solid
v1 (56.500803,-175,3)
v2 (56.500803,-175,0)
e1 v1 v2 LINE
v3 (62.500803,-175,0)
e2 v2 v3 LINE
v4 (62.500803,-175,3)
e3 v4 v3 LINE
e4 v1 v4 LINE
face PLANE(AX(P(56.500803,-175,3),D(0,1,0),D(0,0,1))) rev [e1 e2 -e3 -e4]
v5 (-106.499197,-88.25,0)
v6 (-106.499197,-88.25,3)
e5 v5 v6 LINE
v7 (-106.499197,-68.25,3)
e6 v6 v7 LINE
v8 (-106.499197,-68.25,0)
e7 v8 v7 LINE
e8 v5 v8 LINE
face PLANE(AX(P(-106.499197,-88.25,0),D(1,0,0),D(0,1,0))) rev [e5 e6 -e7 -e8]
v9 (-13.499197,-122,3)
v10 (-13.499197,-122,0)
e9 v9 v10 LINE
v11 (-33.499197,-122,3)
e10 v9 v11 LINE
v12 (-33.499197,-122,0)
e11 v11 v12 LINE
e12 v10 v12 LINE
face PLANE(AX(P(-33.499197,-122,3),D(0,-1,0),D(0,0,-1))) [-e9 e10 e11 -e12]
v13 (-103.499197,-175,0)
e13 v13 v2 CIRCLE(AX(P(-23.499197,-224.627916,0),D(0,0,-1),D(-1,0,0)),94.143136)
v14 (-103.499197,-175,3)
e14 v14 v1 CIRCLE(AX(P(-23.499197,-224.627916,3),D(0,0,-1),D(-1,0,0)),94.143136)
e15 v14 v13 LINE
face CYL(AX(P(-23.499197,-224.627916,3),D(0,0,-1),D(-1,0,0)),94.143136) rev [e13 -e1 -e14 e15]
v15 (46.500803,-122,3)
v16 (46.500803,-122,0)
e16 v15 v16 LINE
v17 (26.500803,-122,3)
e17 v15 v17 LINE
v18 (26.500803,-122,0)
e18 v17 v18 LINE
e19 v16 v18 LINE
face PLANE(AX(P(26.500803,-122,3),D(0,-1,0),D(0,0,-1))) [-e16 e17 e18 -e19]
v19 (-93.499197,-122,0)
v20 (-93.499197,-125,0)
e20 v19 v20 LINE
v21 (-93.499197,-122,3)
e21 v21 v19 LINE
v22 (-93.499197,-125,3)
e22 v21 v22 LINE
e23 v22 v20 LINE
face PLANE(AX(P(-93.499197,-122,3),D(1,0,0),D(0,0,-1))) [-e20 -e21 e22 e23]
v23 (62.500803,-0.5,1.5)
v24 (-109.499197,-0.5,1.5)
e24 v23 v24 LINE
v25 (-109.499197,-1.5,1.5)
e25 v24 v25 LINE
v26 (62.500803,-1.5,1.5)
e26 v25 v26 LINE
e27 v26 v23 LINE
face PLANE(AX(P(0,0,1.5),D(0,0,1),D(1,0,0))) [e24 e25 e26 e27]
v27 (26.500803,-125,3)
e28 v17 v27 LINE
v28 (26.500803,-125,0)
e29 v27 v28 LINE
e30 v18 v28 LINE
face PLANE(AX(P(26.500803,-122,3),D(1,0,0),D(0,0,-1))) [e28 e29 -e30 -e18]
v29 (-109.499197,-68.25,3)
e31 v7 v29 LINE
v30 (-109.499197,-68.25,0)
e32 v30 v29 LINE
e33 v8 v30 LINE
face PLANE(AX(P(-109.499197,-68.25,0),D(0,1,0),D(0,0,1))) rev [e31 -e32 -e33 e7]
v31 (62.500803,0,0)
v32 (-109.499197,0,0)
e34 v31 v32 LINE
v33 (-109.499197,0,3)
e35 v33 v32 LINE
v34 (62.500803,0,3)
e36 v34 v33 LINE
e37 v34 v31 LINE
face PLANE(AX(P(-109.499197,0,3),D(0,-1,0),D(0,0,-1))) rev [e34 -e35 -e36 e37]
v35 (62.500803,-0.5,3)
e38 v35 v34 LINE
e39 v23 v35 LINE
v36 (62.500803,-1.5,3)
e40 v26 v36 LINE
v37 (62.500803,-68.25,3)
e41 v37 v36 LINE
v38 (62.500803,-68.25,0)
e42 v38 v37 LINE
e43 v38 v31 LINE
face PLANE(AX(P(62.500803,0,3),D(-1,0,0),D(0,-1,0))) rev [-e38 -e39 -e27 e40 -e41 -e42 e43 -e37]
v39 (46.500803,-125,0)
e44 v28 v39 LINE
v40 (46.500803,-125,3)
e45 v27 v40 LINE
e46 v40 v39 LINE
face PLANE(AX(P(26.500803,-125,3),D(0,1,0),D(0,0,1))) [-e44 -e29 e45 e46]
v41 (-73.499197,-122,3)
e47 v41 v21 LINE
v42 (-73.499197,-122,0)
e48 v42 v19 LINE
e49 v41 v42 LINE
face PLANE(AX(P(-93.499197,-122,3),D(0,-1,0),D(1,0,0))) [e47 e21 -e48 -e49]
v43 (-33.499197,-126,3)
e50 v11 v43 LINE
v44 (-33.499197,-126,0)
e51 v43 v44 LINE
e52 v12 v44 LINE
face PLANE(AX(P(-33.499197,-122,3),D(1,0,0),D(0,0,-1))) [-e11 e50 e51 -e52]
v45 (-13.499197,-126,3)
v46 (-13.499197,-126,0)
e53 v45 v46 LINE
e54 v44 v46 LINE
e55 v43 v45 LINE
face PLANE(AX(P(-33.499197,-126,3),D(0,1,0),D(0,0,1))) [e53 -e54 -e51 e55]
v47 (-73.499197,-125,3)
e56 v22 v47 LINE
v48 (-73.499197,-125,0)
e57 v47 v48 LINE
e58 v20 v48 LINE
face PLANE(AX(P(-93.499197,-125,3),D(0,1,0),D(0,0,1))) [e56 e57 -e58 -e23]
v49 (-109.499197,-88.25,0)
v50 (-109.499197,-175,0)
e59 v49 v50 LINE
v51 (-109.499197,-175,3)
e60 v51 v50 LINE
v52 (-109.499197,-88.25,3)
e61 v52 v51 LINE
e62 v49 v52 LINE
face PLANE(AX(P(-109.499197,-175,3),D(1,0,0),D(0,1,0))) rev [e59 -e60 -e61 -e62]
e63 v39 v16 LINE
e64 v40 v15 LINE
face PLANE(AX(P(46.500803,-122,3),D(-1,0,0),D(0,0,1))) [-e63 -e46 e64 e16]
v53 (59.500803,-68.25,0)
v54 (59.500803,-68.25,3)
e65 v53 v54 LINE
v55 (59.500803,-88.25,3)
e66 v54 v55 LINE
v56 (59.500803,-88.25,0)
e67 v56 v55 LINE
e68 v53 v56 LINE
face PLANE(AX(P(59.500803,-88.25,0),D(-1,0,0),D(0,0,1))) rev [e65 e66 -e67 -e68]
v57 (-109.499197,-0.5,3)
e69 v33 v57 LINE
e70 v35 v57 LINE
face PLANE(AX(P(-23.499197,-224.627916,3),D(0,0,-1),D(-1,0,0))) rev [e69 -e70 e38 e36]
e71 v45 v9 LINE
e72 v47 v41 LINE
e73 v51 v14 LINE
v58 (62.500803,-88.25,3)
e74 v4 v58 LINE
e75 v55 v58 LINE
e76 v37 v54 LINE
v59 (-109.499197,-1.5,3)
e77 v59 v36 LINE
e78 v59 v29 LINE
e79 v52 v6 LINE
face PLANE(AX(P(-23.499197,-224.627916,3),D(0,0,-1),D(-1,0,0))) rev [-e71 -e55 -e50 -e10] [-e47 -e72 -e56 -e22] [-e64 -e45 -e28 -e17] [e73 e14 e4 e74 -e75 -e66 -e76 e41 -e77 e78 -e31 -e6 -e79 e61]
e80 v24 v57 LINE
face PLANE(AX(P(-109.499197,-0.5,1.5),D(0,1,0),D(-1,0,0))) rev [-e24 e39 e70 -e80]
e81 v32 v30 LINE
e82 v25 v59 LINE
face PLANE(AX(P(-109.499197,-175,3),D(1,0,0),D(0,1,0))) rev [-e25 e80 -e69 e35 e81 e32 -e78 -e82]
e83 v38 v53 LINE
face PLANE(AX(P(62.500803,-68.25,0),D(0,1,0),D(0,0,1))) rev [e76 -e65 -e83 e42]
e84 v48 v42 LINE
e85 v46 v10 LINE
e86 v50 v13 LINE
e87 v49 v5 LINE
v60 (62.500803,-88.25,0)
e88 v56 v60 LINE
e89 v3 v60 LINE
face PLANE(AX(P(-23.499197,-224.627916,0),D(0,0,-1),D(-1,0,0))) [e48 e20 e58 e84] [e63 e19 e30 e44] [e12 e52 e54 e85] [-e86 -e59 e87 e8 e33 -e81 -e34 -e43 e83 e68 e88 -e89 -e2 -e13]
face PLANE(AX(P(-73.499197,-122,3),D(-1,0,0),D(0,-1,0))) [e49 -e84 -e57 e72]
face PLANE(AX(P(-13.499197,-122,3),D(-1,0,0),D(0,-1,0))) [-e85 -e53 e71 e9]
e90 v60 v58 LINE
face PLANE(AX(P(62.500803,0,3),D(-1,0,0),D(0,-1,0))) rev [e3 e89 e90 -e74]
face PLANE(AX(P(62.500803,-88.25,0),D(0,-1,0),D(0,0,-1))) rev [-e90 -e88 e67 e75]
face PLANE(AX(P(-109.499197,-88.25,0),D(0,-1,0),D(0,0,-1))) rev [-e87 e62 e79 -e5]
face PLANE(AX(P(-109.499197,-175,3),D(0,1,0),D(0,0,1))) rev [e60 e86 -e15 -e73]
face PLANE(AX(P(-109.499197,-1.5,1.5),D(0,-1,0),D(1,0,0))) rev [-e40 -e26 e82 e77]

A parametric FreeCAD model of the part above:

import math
import FreeCAD as App
import Part
import Sketcher
Q = App.Units.Quantity


def add_polygon(sketch, points):
    """Adds a closed chain of lines whose ends are joined by coincident constraints."""
    first, n = sketch.GeometryCount, len(points)
    for a, b in zip(points, points[1:] + points[:1]):
        sketch.addGeometry(Part.LineSegment(App.Vector(*a, 0), App.Vector(*b, 0)), False)
    for i in range(n):
        sketch.addConstraint(Sketcher.Constraint("Coincident", first + i, 2, first + (i + 1) % n, 1))

doc = App.newDocument("Part")
body = doc.addObject("PartDesign::Body", "Body")

# Sketch on XY plane
sketch1 = body.newObject("Sketcher::SketchObject", "Sketch")
sketch1.AttachmentSupport = (doc.getObject("XY_Plane"), [""])
sketch1.MapMode = "FlatFace"
sketch1.addGeometry(Part.LineSegment(App.Vector(62.500803, 0, 0), App.Vector(-109.499197, 0, 0)), False)  # 0
sketch1.addGeometry(Part.LineSegment(App.Vector(-109.499197, 0, 0), App.Vector(-109.499197, -175, 0)), False)  # 1
sketch1.addGeometry(Part.LineSegment(App.Vector(-109.499197, -175, 0), App.Vector(-103.499197, -175, 0)), False)  # 2
sketch1.addGeometry(Part.ArcOfCircle(Part.Circle(App.Vector(-23.499197, -224.627916, 0), App.Vector(0, 0, 1), 94.143136), math.radians(31.813353), math.radians(148.186647)), False)  # 3
sketch1.addGeometry(Part.LineSegment(App.Vector(56.500803, -175, 0), App.Vector(62.500803, -175, 0)), False)  # 4
sketch1.addGeometry(Part.LineSegment(App.Vector(62.500803, -175, 0), App.Vector(62.500803, 0, 0)), False)  # 5
add_polygon(sketch1, [(26.500803, -125), (26.500803, -122), (46.500803, -122), (46.500803, -125)])  # lines 6-9
add_polygon(sketch1, [(-33.499197, -126), (-33.499197, -122), (-13.499197, -122), (-13.499197, -126)])  # lines 10-13
add_polygon(sketch1, [(-93.499197, -125), (-93.499197, -122), (-73.499197, -122), (-73.499197, -125)])  # lines 14-17
sketch1.addConstraint(Sketcher.Constraint("Coincident", 0, 2, 1, 1))
sketch1.addConstraint(Sketcher.Constraint("Coincident", 1, 2, 2, 1))
sketch1.addConstraint(Sketcher.Constraint("Coincident", 2, 2, 3, 2))
sketch1.addConstraint(Sketcher.Constraint("Coincident", 3, 1, 4, 1))
sketch1.addConstraint(Sketcher.Constraint("Coincident", 4, 2, 5, 1))
sketch1.addConstraint(Sketcher.Constraint("Coincident", 5, 2, 0, 1))
sketch1.addConstraint(Sketcher.Constraint("Horizontal", 0))
sketch1.addConstraint(Sketcher.Constraint("Vertical", 1))
sketch1.addConstraint(Sketcher.Constraint("Horizontal", 2))
sketch1.addConstraint(Sketcher.Constraint("Horizontal", 4))
sketch1.addConstraint(Sketcher.Constraint("Vertical", 5))
sketch1.addConstraint(Sketcher.Constraint("Vertical", 6))
sketch1.addConstraint(Sketcher.Constraint("Horizontal", 7))
sketch1.addConstraint(Sketcher.Constraint("Vertical", 8))
sketch1.addConstraint(Sketcher.Constraint("Horizontal", 9))
sketch1.addConstraint(Sketcher.Constraint("Vertical", 10))
sketch1.addConstraint(Sketcher.Constraint("Horizontal", 11))
sketch1.addConstraint(Sketcher.Constraint("Vertical", 12))
sketch1.addConstraint(Sketcher.Constraint("Horizontal", 13))
sketch1.addConstraint(Sketcher.Constraint("Vertical", 14))
sketch1.addConstraint(Sketcher.Constraint("Horizontal", 15))
sketch1.addConstraint(Sketcher.Constraint("Vertical", 16))
sketch1.addConstraint(Sketcher.Constraint("Horizontal", 17))
sketch1.addConstraint(Sketcher.Constraint("PointOnObject", 0, 2, -1))
sketch1.addConstraint(Sketcher.Constraint("Horizontal", 2, 2, 3, 1))
sketch1.addConstraint(Sketcher.Constraint("Horizontal", 7, 2, 10, 2))
sketch1.addConstraint(Sketcher.Constraint("Horizontal", 11, 2, 14, 2))
sketch1.addConstraint(Sketcher.Constraint("Horizontal", 9, 2, 16, 2))
sketch1.addConstraint(Sketcher.Constraint("Equal", 2, 4))
sketch1.addConstraint(Sketcher.Constraint("Equal", 9, 11))
sketch1.addConstraint(Sketcher.Constraint("Equal", 13, 15))
sketch1.addConstraint(Sketcher.Constraint("DistanceX", 0, 2, 0, 1, Q("172 mm")))
sketch1.addConstraint(Sketcher.Constraint("DistanceX", 2, 1, 2, 2, Q("6 mm")))
sketch1.addConstraint(Sketcher.Constraint("DistanceX", 7, 1, 7, 2, Q("20 mm")))
sketch1.addConstraint(Sketcher.Constraint("DistanceY", 1, 2, 1, 1, Q("175 mm")))
sketch1.addConstraint(Sketcher.Constraint("DistanceY", 6, 1, 6, 2, Q("3 mm")))
sketch1.addConstraint(Sketcher.Constraint("DistanceY", 10, 1, 10, 2, Q("4 mm")))
sketch1.addConstraint(Sketcher.Constraint("DistanceY", 6, 2, -1, 1, Q("122 mm")))
sketch1.addConstraint(Sketcher.Constraint("DistanceX", 6, 2, 3, 1, Q("30 mm")))
sketch1.addConstraint(Sketcher.Constraint("DistanceX", 10, 2, 6, 2, Q("60 mm")))
sketch1.addConstraint(Sketcher.Constraint("DistanceX", 2, 2, 14, 2, Q("10 mm")))
sketch1.addConstraint(Sketcher.Constraint("Radius", 3, Q("94.143136 mm")))
sketch1.addConstraint(Sketcher.Constraint("DistanceX", 3, 3, -1, 1, Q("23.499197 mm")))
pad1 = body.newObject("PartDesign::Pad", "Pad")
pad1.Profile = sketch1
pad1.Length = 3

# Sketch on XY plane
sketch2 = body.newObject("Sketcher::SketchObject", "Sketch001")
sketch2.AttachmentSupport = (doc.getObject("XY_Plane"), [""])
sketch2.MapMode = "FlatFace"
sketch2.AttachmentOffset = App.Placement(App.Vector(0, 0, 3), App.Rotation())
add_polygon(sketch2, [(-109.499197, -0.5), (-109.499197, -1.5), (62.500803, -1.5), (62.500803, -0.5)])  # lines 0-3
sketch2.addConstraint(Sketcher.Constraint("Vertical", 0))
sketch2.addConstraint(Sketcher.Constraint("Horizontal", 1))
sketch2.addConstraint(Sketcher.Constraint("Vertical", 2))
sketch2.addConstraint(Sketcher.Constraint("Horizontal", 3))
sketch2.addConstraint(Sketcher.Constraint("DistanceX", 1, 1, 1, 2, Q("172 mm")))
sketch2.addConstraint(Sketcher.Constraint("DistanceY", 0, 2, 0, 1, Q("1 mm")))
sketch2.addConstraint(Sketcher.Constraint("DistanceY", 0, 2, -1, 1, Q("1.5 mm")))
sketch2.addConstraint(Sketcher.Constraint("DistanceX", 0, 2, -1, 1, Q("109.499197 mm")))
pocket1 = body.newObject("PartDesign::Pocket", "Pocket")
pocket1.Profile = sketch2
pocket1.Length = 1.5

# Sketch on XY plane
sketch3 = body.newObject("Sketcher::SketchObject", "Sketch002")
sketch3.AttachmentSupport = (doc.getObject("XY_Plane"), [""])
sketch3.MapMode = "FlatFace"
sketch3.AttachmentOffset = App.Placement(App.Vector(0, 0, 3), App.Rotation())
add_polygon(sketch3, [(-109.499197, -68.25), (-109.499197, -88.25), (-106.499197, -88.25), (-106.499197, -68.25)])  # lines 0-3
add_polygon(sketch3, [(59.500803, -68.25), (59.500803, -88.25), (62.500803, -88.25), (62.500803, -68.25)])  # lines 4-7
sketch3.addConstraint(Sketcher.Constraint("Vertical", 0))
sketch3.addConstraint(Sketcher.Constraint("Horizontal", 1))
sketch3.addConstraint(Sketcher.Constraint("Vertical", 2))
sketch3.addConstraint(Sketcher.Constraint("Horizontal", 3))
sketch3.addConstraint(Sketcher.Constraint("Vertical", 4))
sketch3.addConstraint(Sketcher.Constraint("Horizontal", 5))
sketch3.addConstraint(Sketcher.Constraint("Vertical", 6))
sketch3.addConstraint(Sketcher.Constraint("Horizontal", 7))
sketch3.addConstraint(Sketcher.Constraint("Horizontal", 1, 2, 4, 2))
sketch3.addConstraint(Sketcher.Constraint("Horizontal", 3, 2, 6, 2))
sketch3.addConstraint(Sketcher.Constraint("Equal", 3, 5))
sketch3.addConstraint(Sketcher.Constraint("DistanceX", 1, 1, 1, 2, Q("3 mm")))
sketch3.addConstraint(Sketcher.Constraint("DistanceY", 0, 2, 0, 1, Q("20 mm")))
sketch3.addConstraint(Sketcher.Constraint("DistanceX", 1, 2, 4, 2, Q("166 mm")))
sketch3.addConstraint(Sketcher.Constraint("DistanceY", 0, 2, -1, 1, Q("88.25 mm")))
sketch3.addConstraint(Sketcher.Constraint("DistanceX", 0, 2, -1, 1, Q("109.499197 mm")))
pocket2 = body.newObject("PartDesign::Pocket", "Pocket001")
pocket2.Profile = sketch3
pocket2.Type = "ThroughAll"

doc.recompute()
